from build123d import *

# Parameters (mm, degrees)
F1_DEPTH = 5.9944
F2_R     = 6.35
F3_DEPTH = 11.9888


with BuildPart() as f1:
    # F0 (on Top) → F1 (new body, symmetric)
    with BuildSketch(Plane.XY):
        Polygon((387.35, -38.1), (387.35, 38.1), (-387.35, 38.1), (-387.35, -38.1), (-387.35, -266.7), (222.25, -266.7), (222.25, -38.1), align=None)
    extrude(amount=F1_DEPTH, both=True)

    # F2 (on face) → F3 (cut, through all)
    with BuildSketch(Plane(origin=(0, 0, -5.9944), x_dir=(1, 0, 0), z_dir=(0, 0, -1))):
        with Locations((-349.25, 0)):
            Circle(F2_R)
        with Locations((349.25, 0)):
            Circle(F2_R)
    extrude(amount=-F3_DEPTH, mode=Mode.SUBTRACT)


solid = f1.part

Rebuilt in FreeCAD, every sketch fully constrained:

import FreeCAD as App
import Part
import Sketcher
from FreeCAD import Vector
Q = App.Units.Quantity

doc = App.newDocument("Part")
body = doc.addObject("PartDesign::Body", "Body")

sketch1 = body.newObject("Sketcher::SketchObject", "Sketch")
sketch1.AttachmentSupport = (doc.getObject("XY_Plane"), [""])
sketch1.MapMode = "FlatFace"
sketch1.addGeometry([
    Part.LineSegment(Vector(387, -38, 0), Vector(387, 38, 0)),
    Part.LineSegment(Vector(387, 38, 0), Vector(-387, 38, 0)),
    Part.LineSegment(Vector(-387, 38, 0), Vector(-387, -267, 0)),
    Part.LineSegment(Vector(-387, -267, 0), Vector(222, -267, 0)),
    Part.LineSegment(Vector(222, -267, 0), Vector(222, -38, 0)),
    Part.LineSegment(Vector(222, -38, 0), Vector(387, -38, 0)),
], False)
sketch1.addConstraint([
    Sketcher.Constraint("Coincident", 0, 2, 1, 1),
    Sketcher.Constraint("Coincident", 1, 2, 2, 1),
    Sketcher.Constraint("Coincident", 2, 2, 3, 1),
    Sketcher.Constraint("Coincident", 3, 2, 4, 1),
    Sketcher.Constraint("Coincident", 4, 2, 5, 1),
    Sketcher.Constraint("Coincident", 5, 2, 0, 1),
    Sketcher.Constraint("Vertical", 0),
    Sketcher.Constraint("Horizontal", 1),
    Sketcher.Constraint("Vertical", 2),
    Sketcher.Constraint("Horizontal", 3),
    Sketcher.Constraint("Vertical", 4),
    Sketcher.Constraint("Horizontal", 5),
    Sketcher.Constraint("Symmetric", 1, 2, 5, 2, -1, 1),
    Sketcher.Constraint("DistanceX", 3, 1, 3, 2, Q("24 in")),
    Sketcher.Constraint("DistanceY", 0, 1, 0, 2, Q("3 in")),
    Sketcher.Constraint("DistanceY", 2, 2, 2, 1, Q("12 in")),
    Sketcher.Constraint("DistanceX", 1, 2, 1, 1, Q("30.5 in")),
])
pad1 = body.newObject("PartDesign::Pad", "Pad")
pad1.Profile = sketch1
pad1.Length = Q("0.472 in")
pad1.Midplane = True

sketch2 = body.newObject("Sketcher::SketchObject", "Sketch001")
sketch2.AttachmentSupport = (doc.getObject("XY_Plane"), [""])
sketch2.MapMode = "FlatFace"
sketch2.AttachmentOffset = App.Placement(Vector(0, 0, -0.236 * 25.4), App.Rotation())
sketch2.addGeometry([
    Part.Circle(Vector(-349, 0, 0), Vector(0, 0, 1), 6),
    Part.Circle(Vector(349, 0, 0), Vector(0, 0, 1), 6),
], False)
sketch2.addConstraint([
    Sketcher.Constraint("Equal", 0, 1),
    Sketcher.Constraint("Symmetric", 0, 3, 1, 3, -1, 1),
    Sketcher.Constraint("PointOnObject", 0, 3, -1),
    Sketcher.Constraint("Diameter", 0, Q("0.5 in")),
    Sketcher.Constraint("DistanceX", 0, 3, 1, 3, Q("27.5 in")),
])
pocket1 = body.newObject("PartDesign::Pocket", "Pocket")
pocket1.Profile = sketch2
pocket1.Type = "ThroughAll"
pocket1.Reversed = True

doc.recompute()
